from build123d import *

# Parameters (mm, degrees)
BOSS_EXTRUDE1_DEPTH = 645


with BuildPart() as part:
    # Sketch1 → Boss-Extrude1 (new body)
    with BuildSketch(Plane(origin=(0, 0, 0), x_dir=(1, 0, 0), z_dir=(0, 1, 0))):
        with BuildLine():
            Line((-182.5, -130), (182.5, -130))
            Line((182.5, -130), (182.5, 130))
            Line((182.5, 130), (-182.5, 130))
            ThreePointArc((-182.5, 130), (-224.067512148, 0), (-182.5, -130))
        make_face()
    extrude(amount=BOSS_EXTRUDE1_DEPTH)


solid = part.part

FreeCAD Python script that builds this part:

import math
import FreeCAD as App
import Part
import Sketcher
from FreeCAD import Vector
Q = App.Units.Quantity

doc = App.newDocument("Part")
body = doc.addObject("PartDesign::Body", "Body")

# Sketch on XZ plane
sketch1 = body.newObject("Sketcher::SketchObject", "Sketch")
sketch1.AttachmentSupport = (doc.getObject("XZ_Plane"), [""])
sketch1.MapMode = "FlatFace"
sketch1.addGeometry(Part.LineSegment(Vector(-182.5, 130, 0), Vector(182.5, 130, 0)), False)
sketch1.addGeometry(Part.LineSegment(Vector(182.5, 130, 0), Vector(182.5, -130, 0)), False)
sketch1.addGeometry(Part.LineSegment(Vector(182.5, -130, 0), Vector(-182.5, -130, 0)), False)
sketch1.addGeometry(Part.ArcOfCircle(Part.Circle(Vector(0, 0, 0), Vector(0, 0, 1), 224.067512), math.radians(144.536636), math.radians(215.463364)), False)
sketch1.addConstraint(Sketcher.Constraint("Coincident", 0, 2, 1, 1))
sketch1.addConstraint(Sketcher.Constraint("Coincident", 1, 2, 2, 1))
sketch1.addConstraint(Sketcher.Constraint("Coincident", 2, 2, 3, 2))
sketch1.addConstraint(Sketcher.Constraint("Coincident", 3, 1, 0, 1))
sketch1.addConstraint(Sketcher.Constraint("Horizontal", 0))
sketch1.addConstraint(Sketcher.Constraint("Vertical", 1))
sketch1.addConstraint(Sketcher.Constraint("Horizontal", 2))
sketch1.addConstraint(Sketcher.Constraint("Coincident", 3, 3, -1, 1))
sketch1.addConstraint(Sketcher.Constraint("Symmetric", 0, 2, 2, 2, -1, 1))
sketch1.addConstraint(Sketcher.Constraint("DistanceX", 0, 1, 0, 2, Q("365 mm")))
sketch1.addConstraint(Sketcher.Constraint("DistanceY", 1, 2, 1, 1, Q("260 mm")))
pad1 = body.newObject("PartDesign::Pad", "Pad")
pad1.Profile = sketch1
pad1.Length = 645
pad1.Reversed = True

doc.recompute()
